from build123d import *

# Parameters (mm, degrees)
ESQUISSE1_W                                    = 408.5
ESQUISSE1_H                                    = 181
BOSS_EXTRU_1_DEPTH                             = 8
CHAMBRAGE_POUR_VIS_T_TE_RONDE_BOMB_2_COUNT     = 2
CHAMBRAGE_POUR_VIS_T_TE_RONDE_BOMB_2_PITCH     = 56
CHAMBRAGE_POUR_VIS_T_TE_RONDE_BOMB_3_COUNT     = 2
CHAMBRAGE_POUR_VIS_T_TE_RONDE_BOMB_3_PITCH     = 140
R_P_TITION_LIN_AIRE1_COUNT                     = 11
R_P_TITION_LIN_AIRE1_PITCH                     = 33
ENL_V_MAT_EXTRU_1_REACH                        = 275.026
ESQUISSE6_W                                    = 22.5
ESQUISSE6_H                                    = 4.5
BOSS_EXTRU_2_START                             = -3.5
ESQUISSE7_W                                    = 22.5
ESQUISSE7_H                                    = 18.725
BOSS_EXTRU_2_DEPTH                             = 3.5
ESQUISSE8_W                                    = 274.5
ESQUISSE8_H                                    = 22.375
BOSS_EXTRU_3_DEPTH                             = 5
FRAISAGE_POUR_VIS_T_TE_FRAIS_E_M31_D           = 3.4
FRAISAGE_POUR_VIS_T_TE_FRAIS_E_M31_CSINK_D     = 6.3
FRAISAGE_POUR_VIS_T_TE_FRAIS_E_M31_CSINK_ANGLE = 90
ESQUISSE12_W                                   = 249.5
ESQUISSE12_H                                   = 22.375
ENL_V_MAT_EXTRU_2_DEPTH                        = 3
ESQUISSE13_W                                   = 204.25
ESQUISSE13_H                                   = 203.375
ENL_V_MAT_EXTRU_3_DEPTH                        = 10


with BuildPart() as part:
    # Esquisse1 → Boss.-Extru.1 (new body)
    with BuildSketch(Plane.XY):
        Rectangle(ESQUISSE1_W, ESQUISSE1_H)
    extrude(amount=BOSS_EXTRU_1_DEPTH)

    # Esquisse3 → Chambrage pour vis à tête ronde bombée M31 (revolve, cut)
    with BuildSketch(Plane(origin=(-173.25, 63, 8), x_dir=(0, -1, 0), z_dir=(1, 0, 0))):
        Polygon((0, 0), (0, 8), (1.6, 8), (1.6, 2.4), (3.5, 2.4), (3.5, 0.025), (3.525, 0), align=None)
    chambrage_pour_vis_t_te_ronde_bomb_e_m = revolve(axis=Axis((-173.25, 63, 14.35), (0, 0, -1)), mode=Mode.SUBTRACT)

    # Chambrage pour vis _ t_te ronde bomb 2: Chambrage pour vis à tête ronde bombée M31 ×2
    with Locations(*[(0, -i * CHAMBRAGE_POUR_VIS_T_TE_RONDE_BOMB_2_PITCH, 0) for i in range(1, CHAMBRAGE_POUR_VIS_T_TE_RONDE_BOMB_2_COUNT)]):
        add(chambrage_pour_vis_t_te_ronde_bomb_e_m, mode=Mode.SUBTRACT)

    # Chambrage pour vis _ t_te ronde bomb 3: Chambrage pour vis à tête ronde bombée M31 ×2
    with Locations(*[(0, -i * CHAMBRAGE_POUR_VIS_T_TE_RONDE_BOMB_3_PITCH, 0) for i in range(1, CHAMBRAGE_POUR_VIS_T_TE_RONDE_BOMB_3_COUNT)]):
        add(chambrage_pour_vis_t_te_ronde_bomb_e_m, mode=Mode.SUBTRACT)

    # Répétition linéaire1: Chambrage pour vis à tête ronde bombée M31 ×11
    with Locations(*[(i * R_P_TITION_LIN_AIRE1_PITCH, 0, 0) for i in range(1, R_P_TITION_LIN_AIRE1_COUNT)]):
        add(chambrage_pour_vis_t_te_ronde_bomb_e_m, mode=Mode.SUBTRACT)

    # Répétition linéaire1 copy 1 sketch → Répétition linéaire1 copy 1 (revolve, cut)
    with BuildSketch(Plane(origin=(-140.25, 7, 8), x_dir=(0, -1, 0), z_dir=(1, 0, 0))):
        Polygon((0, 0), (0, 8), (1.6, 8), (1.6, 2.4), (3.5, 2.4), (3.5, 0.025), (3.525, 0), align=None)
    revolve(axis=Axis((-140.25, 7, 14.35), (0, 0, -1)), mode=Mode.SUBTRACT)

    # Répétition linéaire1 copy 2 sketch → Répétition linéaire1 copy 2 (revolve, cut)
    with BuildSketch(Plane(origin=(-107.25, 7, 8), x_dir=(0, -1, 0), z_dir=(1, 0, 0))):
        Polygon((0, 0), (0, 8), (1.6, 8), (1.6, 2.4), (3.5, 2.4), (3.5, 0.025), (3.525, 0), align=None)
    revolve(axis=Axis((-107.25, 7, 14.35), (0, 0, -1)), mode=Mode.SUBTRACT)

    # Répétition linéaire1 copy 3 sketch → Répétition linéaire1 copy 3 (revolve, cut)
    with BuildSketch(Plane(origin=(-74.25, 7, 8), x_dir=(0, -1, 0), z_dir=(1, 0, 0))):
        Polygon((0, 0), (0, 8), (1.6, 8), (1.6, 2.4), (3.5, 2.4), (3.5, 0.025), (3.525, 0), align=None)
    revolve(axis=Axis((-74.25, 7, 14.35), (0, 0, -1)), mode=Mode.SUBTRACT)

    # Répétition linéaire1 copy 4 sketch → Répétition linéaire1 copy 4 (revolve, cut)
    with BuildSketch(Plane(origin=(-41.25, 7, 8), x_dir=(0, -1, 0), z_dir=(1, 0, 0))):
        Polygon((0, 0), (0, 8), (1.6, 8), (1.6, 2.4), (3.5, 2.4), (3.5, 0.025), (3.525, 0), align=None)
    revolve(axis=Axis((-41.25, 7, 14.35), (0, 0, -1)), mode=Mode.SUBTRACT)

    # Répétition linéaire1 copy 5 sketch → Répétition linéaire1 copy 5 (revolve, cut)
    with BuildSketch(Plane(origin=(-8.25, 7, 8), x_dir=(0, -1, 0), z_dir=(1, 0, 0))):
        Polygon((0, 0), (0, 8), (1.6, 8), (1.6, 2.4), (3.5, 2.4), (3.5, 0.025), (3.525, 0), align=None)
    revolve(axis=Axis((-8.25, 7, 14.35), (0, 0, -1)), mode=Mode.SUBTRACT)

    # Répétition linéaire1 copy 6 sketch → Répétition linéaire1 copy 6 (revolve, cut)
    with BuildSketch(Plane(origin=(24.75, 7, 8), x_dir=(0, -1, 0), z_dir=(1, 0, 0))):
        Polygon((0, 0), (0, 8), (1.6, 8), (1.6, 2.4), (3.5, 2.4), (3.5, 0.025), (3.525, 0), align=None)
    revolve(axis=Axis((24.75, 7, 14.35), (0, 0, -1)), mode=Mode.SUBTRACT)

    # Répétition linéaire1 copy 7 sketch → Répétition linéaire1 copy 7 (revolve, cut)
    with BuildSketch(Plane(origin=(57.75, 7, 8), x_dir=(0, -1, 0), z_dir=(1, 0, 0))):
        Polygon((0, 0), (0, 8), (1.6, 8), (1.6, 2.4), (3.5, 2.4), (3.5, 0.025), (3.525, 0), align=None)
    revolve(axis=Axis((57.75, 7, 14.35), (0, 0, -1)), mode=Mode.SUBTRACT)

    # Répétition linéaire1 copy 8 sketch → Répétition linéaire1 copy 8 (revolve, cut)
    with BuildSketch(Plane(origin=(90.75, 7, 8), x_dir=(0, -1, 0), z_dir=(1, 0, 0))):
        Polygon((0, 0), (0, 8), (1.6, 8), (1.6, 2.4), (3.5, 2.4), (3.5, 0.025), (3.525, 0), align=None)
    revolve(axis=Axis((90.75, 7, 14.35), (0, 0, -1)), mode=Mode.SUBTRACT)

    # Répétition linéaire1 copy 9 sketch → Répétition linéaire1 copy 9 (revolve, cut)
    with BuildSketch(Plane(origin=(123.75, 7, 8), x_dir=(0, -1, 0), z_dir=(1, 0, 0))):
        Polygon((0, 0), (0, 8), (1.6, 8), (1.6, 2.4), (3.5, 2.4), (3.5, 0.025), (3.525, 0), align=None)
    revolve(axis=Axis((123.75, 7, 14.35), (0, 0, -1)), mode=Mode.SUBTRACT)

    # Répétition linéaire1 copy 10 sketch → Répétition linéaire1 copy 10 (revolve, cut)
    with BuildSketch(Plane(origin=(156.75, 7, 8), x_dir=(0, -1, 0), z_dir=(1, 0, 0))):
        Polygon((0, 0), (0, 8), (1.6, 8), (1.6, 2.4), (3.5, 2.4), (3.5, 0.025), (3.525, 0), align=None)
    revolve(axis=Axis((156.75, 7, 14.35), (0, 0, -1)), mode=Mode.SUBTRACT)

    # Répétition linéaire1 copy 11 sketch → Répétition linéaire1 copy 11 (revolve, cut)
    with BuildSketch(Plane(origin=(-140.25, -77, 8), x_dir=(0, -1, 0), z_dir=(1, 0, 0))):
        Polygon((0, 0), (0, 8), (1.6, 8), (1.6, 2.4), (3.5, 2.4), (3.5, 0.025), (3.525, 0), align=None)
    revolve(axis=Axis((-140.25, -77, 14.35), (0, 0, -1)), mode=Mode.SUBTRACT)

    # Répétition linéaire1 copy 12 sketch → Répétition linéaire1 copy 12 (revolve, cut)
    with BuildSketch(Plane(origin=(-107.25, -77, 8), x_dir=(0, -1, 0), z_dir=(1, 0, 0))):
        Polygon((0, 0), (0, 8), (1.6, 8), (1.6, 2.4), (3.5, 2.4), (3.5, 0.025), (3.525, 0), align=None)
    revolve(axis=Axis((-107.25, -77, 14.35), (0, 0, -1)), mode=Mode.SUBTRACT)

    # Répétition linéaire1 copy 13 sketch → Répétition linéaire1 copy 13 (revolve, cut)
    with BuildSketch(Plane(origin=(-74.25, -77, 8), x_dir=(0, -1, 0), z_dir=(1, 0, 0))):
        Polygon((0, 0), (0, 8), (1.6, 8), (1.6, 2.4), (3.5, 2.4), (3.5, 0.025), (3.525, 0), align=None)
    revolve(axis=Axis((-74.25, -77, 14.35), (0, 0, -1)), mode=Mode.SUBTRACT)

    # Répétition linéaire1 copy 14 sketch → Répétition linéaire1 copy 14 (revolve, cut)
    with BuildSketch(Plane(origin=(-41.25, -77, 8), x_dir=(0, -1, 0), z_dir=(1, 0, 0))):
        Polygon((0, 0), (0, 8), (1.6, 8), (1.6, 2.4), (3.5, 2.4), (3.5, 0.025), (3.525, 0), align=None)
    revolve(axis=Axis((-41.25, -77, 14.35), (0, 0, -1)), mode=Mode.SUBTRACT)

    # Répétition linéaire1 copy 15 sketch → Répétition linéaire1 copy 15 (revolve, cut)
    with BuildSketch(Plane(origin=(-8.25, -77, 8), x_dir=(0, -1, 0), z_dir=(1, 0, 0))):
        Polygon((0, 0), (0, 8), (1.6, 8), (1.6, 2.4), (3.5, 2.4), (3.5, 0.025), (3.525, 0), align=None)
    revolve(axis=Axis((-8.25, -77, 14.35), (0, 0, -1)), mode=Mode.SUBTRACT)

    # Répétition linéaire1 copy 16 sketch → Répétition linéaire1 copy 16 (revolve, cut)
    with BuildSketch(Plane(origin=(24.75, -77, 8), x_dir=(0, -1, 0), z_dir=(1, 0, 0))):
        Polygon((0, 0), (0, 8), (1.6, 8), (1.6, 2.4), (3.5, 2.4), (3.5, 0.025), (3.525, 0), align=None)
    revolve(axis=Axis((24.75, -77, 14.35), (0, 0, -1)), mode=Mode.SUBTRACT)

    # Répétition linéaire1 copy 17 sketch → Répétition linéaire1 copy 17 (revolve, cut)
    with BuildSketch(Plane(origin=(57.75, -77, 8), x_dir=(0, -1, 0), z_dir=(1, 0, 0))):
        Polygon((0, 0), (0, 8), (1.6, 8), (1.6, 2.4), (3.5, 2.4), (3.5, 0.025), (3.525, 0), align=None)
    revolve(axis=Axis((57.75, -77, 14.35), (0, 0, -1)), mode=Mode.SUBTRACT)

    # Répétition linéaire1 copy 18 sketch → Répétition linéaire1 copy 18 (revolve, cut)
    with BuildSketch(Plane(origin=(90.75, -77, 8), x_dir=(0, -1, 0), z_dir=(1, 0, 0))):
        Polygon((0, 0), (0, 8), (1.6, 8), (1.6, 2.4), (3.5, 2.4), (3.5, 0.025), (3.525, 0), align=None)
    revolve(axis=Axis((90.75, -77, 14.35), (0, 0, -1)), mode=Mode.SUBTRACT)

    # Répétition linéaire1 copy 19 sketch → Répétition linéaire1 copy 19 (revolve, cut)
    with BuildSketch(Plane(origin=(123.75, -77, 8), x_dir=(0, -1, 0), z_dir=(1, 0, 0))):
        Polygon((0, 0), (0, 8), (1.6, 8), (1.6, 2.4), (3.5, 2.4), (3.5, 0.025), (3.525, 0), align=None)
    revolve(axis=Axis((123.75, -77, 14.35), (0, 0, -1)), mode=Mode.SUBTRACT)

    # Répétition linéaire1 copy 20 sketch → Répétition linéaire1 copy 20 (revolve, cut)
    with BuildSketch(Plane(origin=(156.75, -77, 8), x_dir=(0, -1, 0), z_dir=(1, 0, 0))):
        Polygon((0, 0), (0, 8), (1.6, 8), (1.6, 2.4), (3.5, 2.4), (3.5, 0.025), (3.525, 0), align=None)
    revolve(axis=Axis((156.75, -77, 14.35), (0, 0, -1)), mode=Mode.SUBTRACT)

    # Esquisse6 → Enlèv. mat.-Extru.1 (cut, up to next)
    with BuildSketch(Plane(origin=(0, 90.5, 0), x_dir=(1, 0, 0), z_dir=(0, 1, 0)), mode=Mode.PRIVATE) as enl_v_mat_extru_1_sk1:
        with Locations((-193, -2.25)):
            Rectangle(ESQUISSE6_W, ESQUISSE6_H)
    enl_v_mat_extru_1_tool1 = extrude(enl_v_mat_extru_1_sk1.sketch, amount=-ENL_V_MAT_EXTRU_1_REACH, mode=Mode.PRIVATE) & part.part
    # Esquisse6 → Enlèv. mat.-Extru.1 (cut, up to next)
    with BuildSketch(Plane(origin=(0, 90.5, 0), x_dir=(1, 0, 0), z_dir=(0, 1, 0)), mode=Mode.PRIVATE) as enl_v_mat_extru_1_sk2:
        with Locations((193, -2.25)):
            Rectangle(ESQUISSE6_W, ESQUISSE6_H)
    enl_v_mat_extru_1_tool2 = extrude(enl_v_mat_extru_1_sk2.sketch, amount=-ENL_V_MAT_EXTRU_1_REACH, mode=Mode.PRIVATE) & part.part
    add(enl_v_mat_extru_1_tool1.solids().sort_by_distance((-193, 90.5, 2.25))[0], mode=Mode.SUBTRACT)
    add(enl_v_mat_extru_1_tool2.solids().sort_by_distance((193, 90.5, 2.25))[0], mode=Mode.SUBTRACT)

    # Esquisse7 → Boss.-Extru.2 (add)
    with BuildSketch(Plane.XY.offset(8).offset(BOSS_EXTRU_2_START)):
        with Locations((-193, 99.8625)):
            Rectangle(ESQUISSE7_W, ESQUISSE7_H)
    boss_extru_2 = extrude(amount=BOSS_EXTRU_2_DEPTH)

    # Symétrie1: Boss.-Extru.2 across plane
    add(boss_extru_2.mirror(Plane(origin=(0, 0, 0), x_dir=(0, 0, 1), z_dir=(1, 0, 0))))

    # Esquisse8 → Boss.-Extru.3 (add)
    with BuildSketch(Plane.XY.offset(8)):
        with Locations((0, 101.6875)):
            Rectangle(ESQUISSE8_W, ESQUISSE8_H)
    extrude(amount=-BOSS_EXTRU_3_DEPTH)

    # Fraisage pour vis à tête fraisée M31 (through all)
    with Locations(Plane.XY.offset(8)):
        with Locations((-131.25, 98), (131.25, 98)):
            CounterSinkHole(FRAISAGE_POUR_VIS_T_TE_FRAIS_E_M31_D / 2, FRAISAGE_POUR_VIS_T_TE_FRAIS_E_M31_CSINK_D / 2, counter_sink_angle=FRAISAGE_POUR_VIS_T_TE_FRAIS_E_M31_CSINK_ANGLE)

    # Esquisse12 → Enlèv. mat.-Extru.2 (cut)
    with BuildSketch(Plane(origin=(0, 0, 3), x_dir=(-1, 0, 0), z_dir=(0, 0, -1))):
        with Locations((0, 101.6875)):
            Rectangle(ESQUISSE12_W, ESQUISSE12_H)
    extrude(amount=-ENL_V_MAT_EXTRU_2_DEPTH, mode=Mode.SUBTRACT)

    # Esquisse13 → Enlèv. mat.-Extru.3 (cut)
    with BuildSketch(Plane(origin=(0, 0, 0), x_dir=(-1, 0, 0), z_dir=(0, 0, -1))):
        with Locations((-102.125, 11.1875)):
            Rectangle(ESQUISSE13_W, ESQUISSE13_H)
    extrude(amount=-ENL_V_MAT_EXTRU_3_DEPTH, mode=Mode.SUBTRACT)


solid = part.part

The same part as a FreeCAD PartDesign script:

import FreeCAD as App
import Part
import Sketcher
Q = App.Units.Quantity


def add_polygon(sketch, points):
    """Adds a closed chain of lines whose ends are joined by coincident constraints."""
    first, n = sketch.GeometryCount, len(points)
    for a, b in zip(points, points[1:] + points[:1]):
        sketch.addGeometry(Part.LineSegment(App.Vector(*a, 0), App.Vector(*b, 0)), False)
    for i in range(n):
        sketch.addConstraint(Sketcher.Constraint("Coincident", first + i, 2, first + (i + 1) % n, 1))

doc = App.newDocument("Part")
body = doc.addObject("PartDesign::Body", "Body")

# Sketch on XY plane
sketch1 = body.newObject("Sketcher::SketchObject", "Sketch")
sketch1.AttachmentSupport = (doc.getObject("XY_Plane"), [""])
sketch1.MapMode = "FlatFace"
add_polygon(sketch1, [(-204.25, 90.5), (-204.25, -90.5), (204.25, -90.5), (204.25, 90.5)])  # lines 0-3
sketch1.addConstraint([
    Sketcher.Constraint("Vertical", 0),
    Sketcher.Constraint("Horizontal", 1),
    Sketcher.Constraint("Vertical", 2),
    Sketcher.Constraint("Horizontal", 3),
    Sketcher.Constraint("Symmetric", 0, 2, 2, 2, -1, 1),
    Sketcher.Constraint("DistanceY", 0, 2, 0, 1, Q("181 mm")),
    Sketcher.Constraint("DistanceX", 1, 1, 1, 2, Q("408.5 mm")),
])
pad1 = body.newObject("PartDesign::Pad", "Pad")
pad1.Profile = sketch1
pad1.Length = 8

# Sketch on YZ plane
sketch2 = body.newObject("Sketcher::SketchObject", "Sketch001")
sketch2.AttachmentSupport = (doc.getObject("YZ_Plane"), [""])
sketch2.MapMode = "FlatFace"
sketch2.AttachmentOffset = App.Placement(App.Vector(0, 0, -173.25), App.Rotation())
add_polygon(sketch2, [(63, 0), (63, 8), (59.475, 8), (59.5, 7.975), (59.5, 5.6), (61.4, 5.6), (61.4, 0)])  # lines 0-6
sketch2.addGeometry(Part.LineSegment(App.Vector(63, 8, 0), App.Vector(63, 0, 0)), True)  # axis
sketch2.addConstraint([
    Sketcher.Constraint("Vertical", 0),
    Sketcher.Constraint("Horizontal", 1),
    Sketcher.Constraint("Vertical", 3),
    Sketcher.Constraint("Horizontal", 4),
    Sketcher.Constraint("Vertical", 5),
    Sketcher.Constraint("Horizontal", 6),
    Sketcher.Constraint("Vertical", 7),
    Sketcher.Constraint("Coincident", 7, 1, 0, 2),
    Sketcher.Constraint("PointOnObject", 5, 2, -1),
    Sketcher.Constraint("PointOnObject", 7, 2, -1),
    Sketcher.Constraint("DistanceY", 0, 1, 0, 2, Q("8 mm")),
    Sketcher.Constraint("Angle", 2, Q("-45 deg")),
    Sketcher.Constraint("DistanceX", 4, 1, 4, 2, Q("1.9 mm")),
    Sketcher.Constraint("DistanceX", 6, 1, 6, 2, Q("1.6 mm")),
    Sketcher.Constraint("DistanceY", 5, 2, 5, 1, Q("5.6 mm")),
    Sketcher.Constraint("DistanceX", -1, 1, 0, 2, Q("63 mm")),
    Sketcher.Constraint("DistanceX", 1, 2, 1, 1, Q("3.525 mm")),
])
groove = body.newObject("PartDesign::Groove", "Groove")
groove.Profile = sketch2
groove.ReferenceAxis = (sketch2, ["Axis0"])
groove.Angle = 360
doc.recompute()

linearpattern = body.newObject("PartDesign::LinearPattern", "LinearPattern")
linearpattern.Originals = [groove]
linearpattern.Direction = (doc.getObject("Y_Axis"), [""])
linearpattern.Mode = "offset"
linearpattern.Offset = 56
linearpattern.Occurrences = 2
linearpattern.Reversed = True
body.Tip = linearpattern
doc.recompute()

linearpattern2 = body.newObject("PartDesign::LinearPattern", "LinearPattern001")
linearpattern2.Originals = [groove]
linearpattern2.Direction = (doc.getObject("Y_Axis"), [""])
linearpattern2.Mode = "offset"
linearpattern2.Offset = 140
linearpattern2.Occurrences = 2
linearpattern2.Reversed = True
body.Tip = linearpattern2
doc.recompute()

linearpattern3 = body.newObject("PartDesign::LinearPattern", "LinearPattern002")
linearpattern3.Originals = [groove]
linearpattern3.Direction = (doc.getObject("X_Axis"), [""])
linearpattern3.Mode = "offset"
linearpattern3.Offset = 33
linearpattern3.Occurrences = 11
body.Tip = linearpattern3

# Sketch on YZ plane
sketch3 = body.newObject("Sketcher::SketchObject", "Sketch002")
sketch3.AttachmentSupport = (doc.getObject("YZ_Plane"), [""])
sketch3.MapMode = "FlatFace"
sketch3.AttachmentOffset = App.Placement(App.Vector(0, 0, -140.25), App.Rotation())
add_polygon(sketch3, [(7, 0), (7, 8), (3.475, 8), (3.5, 7.975), (3.5, 5.6), (5.4, 5.6), (5.4, 0)])  # lines 0-6
sketch3.addGeometry(Part.LineSegment(App.Vector(7, 8, 0), App.Vector(7, 0, 0)), True)  # axis
sketch3.addConstraint([
    Sketcher.Constraint("Vertical", 0),
    Sketcher.Constraint("Horizontal", 1),
    Sketcher.Constraint("Vertical", 3),
    Sketcher.Constraint("Horizontal", 4),
    Sketcher.Constraint("Vertical", 5),
    Sketcher.Constraint("Horizontal", 6),
    Sketcher.Constraint("Vertical", 7),
    Sketcher.Constraint("Coincident", 7, 1, 0, 2),
    Sketcher.Constraint("PointOnObject", 5, 2, -1),
    Sketcher.Constraint("PointOnObject", 7, 2, -1),
    Sketcher.Constraint("DistanceY", 0, 1, 0, 2, Q("8 mm")),
    Sketcher.Constraint("Angle", 2, Q("-45 deg")),
    Sketcher.Constraint("DistanceX", 4, 1, 4, 2, Q("1.9 mm")),
    Sketcher.Constraint("DistanceX", 6, 1, 6, 2, Q("1.6 mm")),
    Sketcher.Constraint("DistanceY", 5, 2, 5, 1, Q("5.6 mm")),
    Sketcher.Constraint("DistanceX", -1, 1, 0, 2, Q("7 mm")),
    Sketcher.Constraint("DistanceX", 1, 2, 1, 1, Q("3.525 mm")),
])
groove2 = body.newObject("PartDesign::Groove", "Groove001")
groove2.Profile = sketch3
groove2.ReferenceAxis = (sketch3, ["Axis0"])
groove2.Angle = 360

# Sketch on YZ plane
sketch4 = body.newObject("Sketcher::SketchObject", "Sketch003")
sketch4.AttachmentSupport = (doc.getObject("YZ_Plane"), [""])
sketch4.MapMode = "FlatFace"
sketch4.AttachmentOffset = App.Placement(App.Vector(0, 0, -107.25), App.Rotation())
add_polygon(sketch4, [(7, 0), (7, 8), (3.475, 8), (3.5, 7.975), (3.5, 5.6), (5.4, 5.6), (5.4, 0)])  # lines 0-6
sketch4.addGeometry(Part.LineSegment(App.Vector(7, 8, 0), App.Vector(7, 0, 0)), True)  # axis
sketch4.addConstraint([
    Sketcher.Constraint("Vertical", 0),
    Sketcher.Constraint("Horizontal", 1),
    Sketcher.Constraint("Vertical", 3),
    Sketcher.Constraint("Horizontal", 4),
    Sketcher.Constraint("Vertical", 5),
    Sketcher.Constraint("Horizontal", 6),
    Sketcher.Constraint("Vertical", 7),
    Sketcher.Constraint("Coincident", 7, 1, 0, 2),
    Sketcher.Constraint("PointOnObject", 5, 2, -1),
    Sketcher.Constraint("PointOnObject", 7, 2, -1),
    Sketcher.Constraint("DistanceY", 0, 1, 0, 2, Q("8 mm")),
    Sketcher.Constraint("Angle", 2, Q("-45 deg")),
    Sketcher.Constraint("DistanceX", 4, 1, 4, 2, Q("1.9 mm")),
    Sketcher.Constraint("DistanceX", 6, 1, 6, 2, Q("1.6 mm")),
    Sketcher.Constraint("DistanceY", 5, 2, 5, 1, Q("5.6 mm")),
    Sketcher.Constraint("DistanceX", -1, 1, 0, 2, Q("7 mm")),
    Sketcher.Constraint("DistanceX", 1, 2, 1, 1, Q("3.525 mm")),
])
groove3 = body.newObject("PartDesign::Groove", "Groove002")
groove3.Profile = sketch4
groove3.ReferenceAxis = (sketch4, ["Axis0"])
groove3.Angle = 360

# Sketch on YZ plane
sketch5 = body.newObject("Sketcher::SketchObject", "Sketch004")
sketch5.AttachmentSupport = (doc.getObject("YZ_Plane"), [""])
sketch5.MapMode = "FlatFace"
sketch5.AttachmentOffset = App.Placement(App.Vector(0, 0, -74.25), App.Rotation())
add_polygon(sketch5, [(7, 0), (7, 8), (3.475, 8), (3.5, 7.975), (3.5, 5.6), (5.4, 5.6), (5.4, 0)])  # lines 0-6
sketch5.addGeometry(Part.LineSegment(App.Vector(7, 8, 0), App.Vector(7, 0, 0)), True)  # axis
sketch5.addConstraint([
    Sketcher.Constraint("Vertical", 0),
    Sketcher.Constraint("Horizontal", 1),
    Sketcher.Constraint("Vertical", 3),
    Sketcher.Constraint("Horizontal", 4),
    Sketcher.Constraint("Vertical", 5),
    Sketcher.Constraint("Horizontal", 6),
    Sketcher.Constraint("Vertical", 7),
    Sketcher.Constraint("Coincident", 7, 1, 0, 2),
    Sketcher.Constraint("PointOnObject", 5, 2, -1),
    Sketcher.Constraint("PointOnObject", 7, 2, -1),
    Sketcher.Constraint("DistanceY", 0, 1, 0, 2, Q("8 mm")),
    Sketcher.Constraint("Angle", 2, Q("-45 deg")),
    Sketcher.Constraint("DistanceX", 4, 1, 4, 2, Q("1.9 mm")),
    Sketcher.Constraint("DistanceX", 6, 1, 6, 2, Q("1.6 mm")),
    Sketcher.Constraint("DistanceY", 5, 2, 5, 1, Q("5.6 mm")),
    Sketcher.Constraint("DistanceX", -1, 1, 0, 2, Q("7 mm")),
    Sketcher.Constraint("DistanceX", 1, 2, 1, 1, Q("3.525 mm")),
])
groove4 = body.newObject("PartDesign::Groove", "Groove003")
groove4.Profile = sketch5
groove4.ReferenceAxis = (sketch5, ["Axis0"])
groove4.Angle = 360

# Sketch on YZ plane
sketch6 = body.newObject("Sketcher::SketchObject", "Sketch005")
sketch6.AttachmentSupport = (doc.getObject("YZ_Plane"), [""])
sketch6.MapMode = "FlatFace"
sketch6.AttachmentOffset = App.Placement(App.Vector(0, 0, -41.25), App.Rotation())
add_polygon(sketch6, [(7, 0), (7, 8), (3.475, 8), (3.5, 7.975), (3.5, 5.6), (5.4, 5.6), (5.4, 0)])  # lines 0-6
sketch6.addGeometry(Part.LineSegment(App.Vector(7, 8, 0), App.Vector(7, 0, 0)), True)  # axis
sketch6.addConstraint([
    Sketcher.Constraint("Vertical", 0),
    Sketcher.Constraint("Horizontal", 1),
    Sketcher.Constraint("Vertical", 3),
    Sketcher.Constraint("Horizontal", 4),
    Sketcher.Constraint("Vertical", 5),
    Sketcher.Constraint("Horizontal", 6),
    Sketcher.Constraint("Vertical", 7),
    Sketcher.Constraint("Coincident", 7, 1, 0, 2),
    Sketcher.Constraint("PointOnObject", 5, 2, -1),
    Sketcher.Constraint("PointOnObject", 7, 2, -1),
    Sketcher.Constraint("DistanceY", 0, 1, 0, 2, Q("8 mm")),
    Sketcher.Constraint("Angle", 2, Q("-45 deg")),
    Sketcher.Constraint("DistanceX", 4, 1, 4, 2, Q("1.9 mm")),
    Sketcher.Constraint("DistanceX", 6, 1, 6, 2, Q("1.6 mm")),
    Sketcher.Constraint("DistanceY", 5, 2, 5, 1, Q("5.6 mm")),
    Sketcher.Constraint("DistanceX", -1, 1, 0, 2, Q("7 mm")),
    Sketcher.Constraint("DistanceX", 1, 2, 1, 1, Q("3.525 mm")),
])
groove5 = body.newObject("PartDesign::Groove", "Groove004")
groove5.Profile = sketch6
groove5.ReferenceAxis = (sketch6, ["Axis0"])
groove5.Angle = 360

# Sketch on YZ plane
sketch7 = body.newObject("Sketcher::SketchObject", "Sketch006")
sketch7.AttachmentSupport = (doc.getObject("YZ_Plane"), [""])
sketch7.MapMode = "FlatFace"
sketch7.AttachmentOffset = App.Placement(App.Vector(0, 0, -8.25), App.Rotation())
add_polygon(sketch7, [(7, 0), (7, 8), (3.475, 8), (3.5, 7.975), (3.5, 5.6), (5.4, 5.6), (5.4, 0)])  # lines 0-6
sketch7.addGeometry(Part.LineSegment(App.Vector(7, 8, 0), App.Vector(7, 0, 0)), True)  # axis
sketch7.addConstraint([
    Sketcher.Constraint("Vertical", 0),
    Sketcher.Constraint("Horizontal", 1),
    Sketcher.Constraint("Vertical", 3),
    Sketcher.Constraint("Horizontal", 4),
    Sketcher.Constraint("Vertical", 5),
    Sketcher.Constraint("Horizontal", 6),
    Sketcher.Constraint("Vertical", 7),
    Sketcher.Constraint("Coincident", 7, 1, 0, 2),
    Sketcher.Constraint("PointOnObject", 5, 2, -1),
    Sketcher.Constraint("PointOnObject", 7, 2, -1),
    Sketcher.Constraint("DistanceY", 0, 1, 0, 2, Q("8 mm")),
    Sketcher.Constraint("Angle", 2, Q("-45 deg")),
    Sketcher.Constraint("DistanceX", 4, 1, 4, 2, Q("1.9 mm")),
    Sketcher.Constraint("DistanceX", 6, 1, 6, 2, Q("1.6 mm")),
    Sketcher.Constraint("DistanceY", 5, 2, 5, 1, Q("5.6 mm")),
    Sketcher.Constraint("DistanceX", -1, 1, 0, 2, Q("7 mm")),
    Sketcher.Constraint("DistanceX", 1, 2, 1, 1, Q("3.525 mm")),
])
groove6 = body.newObject("PartDesign::Groove", "Groove005")
groove6.Profile = sketch7
groove6.ReferenceAxis = (sketch7, ["Axis0"])
groove6.Angle = 360

# Sketch on YZ plane
sketch8 = body.newObject("Sketcher::SketchObject", "Sketch007")
sketch8.AttachmentSupport = (doc.getObject("YZ_Plane"), [""])
sketch8.MapMode = "FlatFace"
sketch8.AttachmentOffset = App.Placement(App.Vector(0, 0, 24.75), App.Rotation())
add_polygon(sketch8, [(7, 0), (7, 8), (3.475, 8), (3.5, 7.975), (3.5, 5.6), (5.4, 5.6), (5.4, 0)])  # lines 0-6
sketch8.addGeometry(Part.LineSegment(App.Vector(7, 8, 0), App.Vector(7, 0, 0)), True)  # axis
sketch8.addConstraint([
    Sketcher.Constraint("Vertical", 0),
    Sketcher.Constraint("Horizontal", 1),
    Sketcher.Constraint("Vertical", 3),
    Sketcher.Constraint("Horizontal", 4),
    Sketcher.Constraint("Vertical", 5),
    Sketcher.Constraint("Horizontal", 6),
    Sketcher.Constraint("Vertical", 7),
    Sketcher.Constraint("Coincident", 7, 1, 0, 2),
    Sketcher.Constraint("PointOnObject", 5, 2, -1),
    Sketcher.Constraint("PointOnObject", 7, 2, -1),
    Sketcher.Constraint("DistanceY", 0, 1, 0, 2, Q("8 mm")),
    Sketcher.Constraint("Angle", 2, Q("-45 deg")),
    Sketcher.Constraint("DistanceX", 4, 1, 4, 2, Q("1.9 mm")),
    Sketcher.Constraint("DistanceX", 6, 1, 6, 2, Q("1.6 mm")),
    Sketcher.Constraint("DistanceY", 5, 2, 5, 1, Q("5.6 mm")),
    Sketcher.Constraint("DistanceX", -1, 1, 0, 2, Q("7 mm")),
    Sketcher.Constraint("DistanceX", 1, 2, 1, 1, Q("3.525 mm")),
])
groove7 = body.newObject("PartDesign::Groove", "Groove006")
groove7.Profile = sketch8
groove7.ReferenceAxis = (sketch8, ["Axis0"])
groove7.Angle = 360

# Sketch on YZ plane
sketch9 = body.newObject("Sketcher::SketchObject", "Sketch008")
sketch9.AttachmentSupport = (doc.getObject("YZ_Plane"), [""])
sketch9.MapMode = "FlatFace"
sketch9.AttachmentOffset = App.Placement(App.Vector(0, 0, 57.75), App.Rotation())
add_polygon(sketch9, [(7, 0), (7, 8), (3.475, 8), (3.5, 7.975), (3.5, 5.6), (5.4, 5.6), (5.4, 0)])  # lines 0-6
sketch9.addGeometry(Part.LineSegment(App.Vector(7, 8, 0), App.Vector(7, 0, 0)), True)  # axis
sketch9.addConstraint([
    Sketcher.Constraint("Vertical", 0),
    Sketcher.Constraint("Horizontal", 1),
    Sketcher.Constraint("Vertical", 3),
    Sketcher.Constraint("Horizontal", 4),
    Sketcher.Constraint("Vertical", 5),
    Sketcher.Constraint("Horizontal", 6),
    Sketcher.Constraint("Vertical", 7),
    Sketcher.Constraint("Coincident", 7, 1, 0, 2),
    Sketcher.Constraint("PointOnObject", 5, 2, -1),
    Sketcher.Constraint("PointOnObject", 7, 2, -1),
    Sketcher.Constraint("DistanceY", 0, 1, 0, 2, Q("8 mm")),
    Sketcher.Constraint("Angle", 2, Q("-45 deg")),
    Sketcher.Constraint("DistanceX", 4, 1, 4, 2, Q("1.9 mm")),
    Sketcher.Constraint("DistanceX", 6, 1, 6, 2, Q("1.6 mm")),
    Sketcher.Constraint("DistanceY", 5, 2, 5, 1, Q("5.6 mm")),
    Sketcher.Constraint("DistanceX", -1, 1, 0, 2, Q("7 mm")),
    Sketcher.Constraint("DistanceX", 1, 2, 1, 1, Q("3.525 mm")),
])
groove8 = body.newObject("PartDesign::Groove", "Groove007")
groove8.Profile = sketch9
groove8.ReferenceAxis = (sketch9, ["Axis0"])
groove8.Angle = 360

# Sketch on YZ plane
sketch10 = body.newObject("Sketcher::SketchObject", "Sketch009")
sketch10.AttachmentSupport = (doc.getObject("YZ_Plane"), [""])
sketch10.MapMode = "FlatFace"
sketch10.AttachmentOffset = App.Placement(App.Vector(0, 0, 90.75), App.Rotation())
add_polygon(sketch10, [(7, 0), (7, 8), (3.475, 8), (3.5, 7.975), (3.5, 5.6), (5.4, 5.6), (5.4, 0)])  # lines 0-6
sketch10.addGeometry(Part.LineSegment(App.Vector(7, 8, 0), App.Vector(7, 0, 0)), True)  # axis
sketch10.addConstraint([
    Sketcher.Constraint("Vertical", 0),
    Sketcher.Constraint("Horizontal", 1),
    Sketcher.Constraint("Vertical", 3),
    Sketcher.Constraint("Horizontal", 4),
    Sketcher.Constraint("Vertical", 5),
    Sketcher.Constraint("Horizontal", 6),
    Sketcher.Constraint("Vertical", 7),
    Sketcher.Constraint("Coincident", 7, 1, 0, 2),
    Sketcher.Constraint("PointOnObject", 5, 2, -1),
    Sketcher.Constraint("PointOnObject", 7, 2, -1),
    Sketcher.Constraint("DistanceY", 0, 1, 0, 2, Q("8 mm")),
    Sketcher.Constraint("Angle", 2, Q("-45 deg")),
    Sketcher.Constraint("DistanceX", 4, 1, 4, 2, Q("1.9 mm")),
    Sketcher.Constraint("DistanceX", 6, 1, 6, 2, Q("1.6 mm")),
    Sketcher.Constraint("DistanceY", 5, 2, 5, 1, Q("5.6 mm")),
    Sketcher.Constraint("DistanceX", -1, 1, 0, 2, Q("7 mm")),
    Sketcher.Constraint("DistanceX", 1, 2, 1, 1, Q("3.525 mm")),
])
groove9 = body.newObject("PartDesign::Groove", "Groove008")
groove9.Profile = sketch10
groove9.ReferenceAxis = (sketch10, ["Axis0"])
groove9.Angle = 360

# Sketch on YZ plane
sketch11 = body.newObject("Sketcher::SketchObject", "Sketch010")
sketch11.AttachmentSupport = (doc.getObject("YZ_Plane"), [""])
sketch11.MapMode = "FlatFace"
sketch11.AttachmentOffset = App.Placement(App.Vector(0, 0, 123.75), App.Rotation())
add_polygon(sketch11, [(7, 0), (7, 8), (3.475, 8), (3.5, 7.975), (3.5, 5.6), (5.4, 5.6), (5.4, 0)])  # lines 0-6
sketch11.addGeometry(Part.LineSegment(App.Vector(7, 8, 0), App.Vector(7, 0, 0)), True)  # axis
sketch11.addConstraint([
    Sketcher.Constraint("Vertical", 0),
    Sketcher.Constraint("Horizontal", 1),
    Sketcher.Constraint("Vertical", 3),
    Sketcher.Constraint("Horizontal", 4),
    Sketcher.Constraint("Vertical", 5),
    Sketcher.Constraint("Horizontal", 6),
    Sketcher.Constraint("Vertical", 7),
    Sketcher.Constraint("Coincident", 7, 1, 0, 2),
    Sketcher.Constraint("PointOnObject", 5, 2, -1),
    Sketcher.Constraint("PointOnObject", 7, 2, -1),
    Sketcher.Constraint("DistanceY", 0, 1, 0, 2, Q("8 mm")),
    Sketcher.Constraint("Angle", 2, Q("-45 deg")),
    Sketcher.Constraint("DistanceX", 4, 1, 4, 2, Q("1.9 mm")),
    Sketcher.Constraint("DistanceX", 6, 1, 6, 2, Q("1.6 mm")),
    Sketcher.Constraint("DistanceY", 5, 2, 5, 1, Q("5.6 mm")),
    Sketcher.Constraint("DistanceX", -1, 1, 0, 2, Q("7 mm")),
    Sketcher.Constraint("DistanceX", 1, 2, 1, 1, Q("3.525 mm")),
])
groove10 = body.newObject("PartDesign::Groove", "Groove009")
groove10.Profile = sketch11
groove10.ReferenceAxis = (sketch11, ["Axis0"])
groove10.Angle = 360

# Sketch on YZ plane
sketch12 = body.newObject("Sketcher::SketchObject", "Sketch011")
sketch12.AttachmentSupport = (doc.getObject("YZ_Plane"), [""])
sketch12.MapMode = "FlatFace"
sketch12.AttachmentOffset = App.Placement(App.Vector(0, 0, 156.75), App.Rotation())
add_polygon(sketch12, [(7, 0), (7, 8), (3.475, 8), (3.5, 7.975), (3.5, 5.6), (5.4, 5.6), (5.4, 0)])  # lines 0-6
sketch12.addGeometry(Part.LineSegment(App.Vector(7, 8, 0), App.Vector(7, 0, 0)), True)  # axis
sketch12.addConstraint([
    Sketcher.Constraint("Vertical", 0),
    Sketcher.Constraint("Horizontal", 1),
    Sketcher.Constraint("Vertical", 3),
    Sketcher.Constraint("Horizontal", 4),
    Sketcher.Constraint("Vertical", 5),
    Sketcher.Constraint("Horizontal", 6),
    Sketcher.Constraint("Vertical", 7),
    Sketcher.Constraint("Coincident", 7, 1, 0, 2),
    Sketcher.Constraint("PointOnObject", 5, 2, -1),
    Sketcher.Constraint("PointOnObject", 7, 2, -1),
    Sketcher.Constraint("DistanceY", 0, 1, 0, 2, Q("8 mm")),
    Sketcher.Constraint("Angle", 2, Q("-45 deg")),
    Sketcher.Constraint("DistanceX", 4, 1, 4, 2, Q("1.9 mm")),
    Sketcher.Constraint("DistanceX", 6, 1, 6, 2, Q("1.6 mm")),
    Sketcher.Constraint("DistanceY", 5, 2, 5, 1, Q("5.6 mm")),
    Sketcher.Constraint("DistanceX", -1, 1, 0, 2, Q("7 mm")),
    Sketcher.Constraint("DistanceX", 1, 2, 1, 1, Q("3.525 mm")),
])
groove11 = body.newObject("PartDesign::Groove", "Groove010")
groove11.Profile = sketch12
groove11.ReferenceAxis = (sketch12, ["Axis0"])
groove11.Angle = 360

# Sketch on YZ plane
sketch13 = body.newObject("Sketcher::SketchObject", "Sketch012")
sketch13.AttachmentSupport = (doc.getObject("YZ_Plane"), [""])
sketch13.MapMode = "FlatFace"
sketch13.AttachmentOffset = App.Placement(App.Vector(0, 0, -140.25), App.Rotation())
add_polygon(sketch13, [(-77, 0), (-77, 8), (-80.525, 8), (-80.5, 7.975), (-80.5, 5.6), (-78.6, 5.6), (-78.6, 0)])  # lines 0-6
sketch13.addGeometry(Part.LineSegment(App.Vector(-77, 8, 0), App.Vector(-77, 0, 0)), True)  # axis
sketch13.addConstraint([
    Sketcher.Constraint("Vertical", 0),
    Sketcher.Constraint("Horizontal", 1),
    Sketcher.Constraint("Vertical", 3),
    Sketcher.Constraint("Horizontal", 4),
    Sketcher.Constraint("Vertical", 5),
    Sketcher.Constraint("Horizontal", 6),
    Sketcher.Constraint("Vertical", 7),
    Sketcher.Constraint("Coincident", 7, 1, 0, 2),
    Sketcher.Constraint("PointOnObject", 5, 2, -1),
    Sketcher.Constraint("PointOnObject", 7, 2, -1),
    Sketcher.Constraint("DistanceY", 0, 1, 0, 2, Q("8 mm")),
    Sketcher.Constraint("Angle", 2, Q("-45 deg")),
    Sketcher.Constraint("DistanceX", 4, 1, 4, 2, Q("1.9 mm")),
    Sketcher.Constraint("DistanceX", 6, 1, 6, 2, Q("1.6 mm")),
    Sketcher.Constraint("DistanceY", 5, 2, 5, 1, Q("5.6 mm")),
    Sketcher.Constraint("DistanceX", 0, 2, -1, 1, Q("77 mm")),
    Sketcher.Constraint("DistanceX", 1, 2, 1, 1, Q("3.525 mm")),
])
groove12 = body.newObject("PartDesign::Groove", "Groove011")
groove12.Profile = sketch13
groove12.ReferenceAxis = (sketch13, ["Axis0"])
groove12.Angle = 360

# Sketch on YZ plane
sketch14 = body.newObject("Sketcher::SketchObject", "Sketch013")
sketch14.AttachmentSupport = (doc.getObject("YZ_Plane"), [""])
sketch14.MapMode = "FlatFace"
sketch14.AttachmentOffset = App.Placement(App.Vector(0, 0, -107.25), App.Rotation())
add_polygon(sketch14, [(-77, 0), (-77, 8), (-80.525, 8), (-80.5, 7.975), (-80.5, 5.6), (-78.6, 5.6), (-78.6, 0)])  # lines 0-6
sketch14.addGeometry(Part.LineSegment(App.Vector(-77, 8, 0), App.Vector(-77, 0, 0)), True)  # axis
sketch14.addConstraint([
    Sketcher.Constraint("Vertical", 0),
    Sketcher.Constraint("Horizontal", 1),
    Sketcher.Constraint("Vertical", 3),
    Sketcher.Constraint("Horizontal", 4),
    Sketcher.Constraint("Vertical", 5),
    Sketcher.Constraint("Horizontal", 6),
    Sketcher.Constraint("Vertical", 7),
    Sketcher.Constraint("Coincident", 7, 1, 0, 2),
    Sketcher.Constraint("PointOnObject", 5, 2, -1),
    Sketcher.Constraint("PointOnObject", 7, 2, -1),
    Sketcher.Constraint("DistanceY", 0, 1, 0, 2, Q("8 mm")),
    Sketcher.Constraint("Angle", 2, Q("-45 deg")),
    Sketcher.Constraint("DistanceX", 4, 1, 4, 2, Q("1.9 mm")),
    Sketcher.Constraint("DistanceX", 6, 1, 6, 2, Q("1.6 mm")),
    Sketcher.Constraint("DistanceY", 5, 2, 5, 1, Q("5.6 mm")),
    Sketcher.Constraint("DistanceX", 0, 2, -1, 1, Q("77 mm")),
    Sketcher.Constraint("DistanceX", 1, 2, 1, 1, Q("3.525 mm")),
])
groove13 = body.newObject("PartDesign::Groove", "Groove012")
groove13.Profile = sketch14
groove13.ReferenceAxis = (sketch14, ["Axis0"])
groove13.Angle = 360

# Sketch on YZ plane
sketch15 = body.newObject("Sketcher::SketchObject", "Sketch014")
sketch15.AttachmentSupport = (doc.getObject("YZ_Plane"), [""])
sketch15.MapMode = "FlatFace"
sketch15.AttachmentOffset = App.Placement(App.Vector(0, 0, -74.25), App.Rotation())
add_polygon(sketch15, [(-77, 0), (-77, 8), (-80.525, 8), (-80.5, 7.975), (-80.5, 5.6), (-78.6, 5.6), (-78.6, 0)])  # lines 0-6
sketch15.addGeometry(Part.LineSegment(App.Vector(-77, 8, 0), App.Vector(-77, 0, 0)), True)  # axis
sketch15.addConstraint([
    Sketcher.Constraint("Vertical", 0),
    Sketcher.Constraint("Horizontal", 1),
    Sketcher.Constraint("Vertical", 3),
    Sketcher.Constraint("Horizontal", 4),
    Sketcher.Constraint("Vertical", 5),
    Sketcher.Constraint("Horizontal", 6),
    Sketcher.Constraint("Vertical", 7),
    Sketcher.Constraint("Coincident", 7, 1, 0, 2),
    Sketcher.Constraint("PointOnObject", 5, 2, -1),
    Sketcher.Constraint("PointOnObject", 7, 2, -1),
    Sketcher.Constraint("DistanceY", 0, 1, 0, 2, Q("8 mm")),
    Sketcher.Constraint("Angle", 2, Q("-45 deg")),
    Sketcher.Constraint("DistanceX", 4, 1, 4, 2, Q("1.9 mm")),
    Sketcher.Constraint("DistanceX", 6, 1, 6, 2, Q("1.6 mm")),
    Sketcher.Constraint("DistanceY", 5, 2, 5, 1, Q("5.6 mm")),
    Sketcher.Constraint("DistanceX", 0, 2, -1, 1, Q("77 mm")),
    Sketcher.Constraint("DistanceX", 1, 2, 1, 1, Q("3.525 mm")),
])
groove14 = body.newObject("PartDesign::Groove", "Groove013")
groove14.Profile = sketch15
groove14.ReferenceAxis = (sketch15, ["Axis0"])
groove14.Angle = 360

# Sketch on YZ plane
sketch16 = body.newObject("Sketcher::SketchObject", "Sketch015")
sketch16.AttachmentSupport = (doc.getObject("YZ_Plane"), [""])
sketch16.MapMode = "FlatFace"
sketch16.AttachmentOffset = App.Placement(App.Vector(0, 0, -41.25), App.Rotation())
add_polygon(sketch16, [(-77, 0), (-77, 8), (-80.525, 8), (-80.5, 7.975), (-80.5, 5.6), (-78.6, 5.6), (-78.6, 0)])  # lines 0-6
sketch16.addGeometry(Part.LineSegment(App.Vector(-77, 8, 0), App.Vector(-77, 0, 0)), True)  # axis
sketch16.addConstraint([
    Sketcher.Constraint("Vertical", 0),
    Sketcher.Constraint("Horizontal", 1),
    Sketcher.Constraint("Vertical", 3),
    Sketcher.Constraint("Horizontal", 4),
    Sketcher.Constraint("Vertical", 5),
    Sketcher.Constraint("Horizontal", 6),
    Sketcher.Constraint("Vertical", 7),
    Sketcher.Constraint("Coincident", 7, 1, 0, 2),
    Sketcher.Constraint("PointOnObject", 5, 2, -1),
    Sketcher.Constraint("PointOnObject", 7, 2, -1),
    Sketcher.Constraint("DistanceY", 0, 1, 0, 2, Q("8 mm")),
    Sketcher.Constraint("Angle", 2, Q("-45 deg")),
    Sketcher.Constraint("DistanceX", 4, 1, 4, 2, Q("1.9 mm")),
    Sketcher.Constraint("DistanceX", 6, 1, 6, 2, Q("1.6 mm")),
    Sketcher.Constraint("DistanceY", 5, 2, 5, 1, Q("5.6 mm")),
    Sketcher.Constraint("DistanceX", 0, 2, -1, 1, Q("77 mm")),
    Sketcher.Constraint("DistanceX", 1, 2, 1, 1, Q("3.525 mm")),
])
groove15 = body.newObject("PartDesign::Groove", "Groove014")
groove15.Profile = sketch16
groove15.ReferenceAxis = (sketch16, ["Axis0"])
groove15.Angle = 360

# Sketch on YZ plane
sketch17 = body.newObject("Sketcher::SketchObject", "Sketch016")
sketch17.AttachmentSupport = (doc.getObject("YZ_Plane"), [""])
sketch17.MapMode = "FlatFace"
sketch17.AttachmentOffset = App.Placement(App.Vector(0, 0, -8.25), App.Rotation())
add_polygon(sketch17, [(-77, 0), (-77, 8), (-80.525, 8), (-80.5, 7.975), (-80.5, 5.6), (-78.6, 5.6), (-78.6, 0)])  # lines 0-6
sketch17.addGeometry(Part.LineSegment(App.Vector(-77, 8, 0), App.Vector(-77, 0, 0)), True)  # axis
sketch17.addConstraint([
    Sketcher.Constraint("Vertical", 0),
    Sketcher.Constraint("Horizontal", 1),
    Sketcher.Constraint("Vertical", 3),
    Sketcher.Constraint("Horizontal", 4),
    Sketcher.Constraint("Vertical", 5),
    Sketcher.Constraint("Horizontal", 6),
    Sketcher.Constraint("Vertical", 7),
    Sketcher.Constraint("Coincident", 7, 1, 0, 2),
    Sketcher.Constraint("PointOnObject", 5, 2, -1),
    Sketcher.Constraint("PointOnObject", 7, 2, -1),
    Sketcher.Constraint("DistanceY", 0, 1, 0, 2, Q("8 mm")),
    Sketcher.Constraint("Angle", 2, Q("-45 deg")),
    Sketcher.Constraint("DistanceX", 4, 1, 4, 2, Q("1.9 mm")),
    Sketcher.Constraint("DistanceX", 6, 1, 6, 2, Q("1.6 mm")),
    Sketcher.Constraint("DistanceY", 5, 2, 5, 1, Q("5.6 mm")),
    Sketcher.Constraint("DistanceX", 0, 2, -1, 1, Q("77 mm")),
    Sketcher.Constraint("DistanceX", 1, 2, 1, 1, Q("3.525 mm")),
])
groove16 = body.newObject("PartDesign::Groove", "Groove015")
groove16.Profile = sketch17
groove16.ReferenceAxis = (sketch17, ["Axis0"])
groove16.Angle = 360

# Sketch on YZ plane
sketch18 = body.newObject("Sketcher::SketchObject", "Sketch017")
sketch18.AttachmentSupport = (doc.getObject("YZ_Plane"), [""])
sketch18.MapMode = "FlatFace"
sketch18.AttachmentOffset = App.Placement(App.Vector(0, 0, 24.75), App.Rotation())
add_polygon(sketch18, [(-77, 0), (-77, 8), (-80.525, 8), (-80.5, 7.975), (-80.5, 5.6), (-78.6, 5.6), (-78.6, 0)])  # lines 0-6
sketch18.addGeometry(Part.LineSegment(App.Vector(-77, 8, 0), App.Vector(-77, 0, 0)), True)  # axis
sketch18.addConstraint([
    Sketcher.Constraint("Vertical", 0),
    Sketcher.Constraint("Horizontal", 1),
    Sketcher.Constraint("Vertical", 3),
    Sketcher.Constraint("Horizontal", 4),
    Sketcher.Constraint("Vertical", 5),
    Sketcher.Constraint("Horizontal", 6),
    Sketcher.Constraint("Vertical", 7),
    Sketcher.Constraint("Coincident", 7, 1, 0, 2),
    Sketcher.Constraint("PointOnObject", 5, 2, -1),
    Sketcher.Constraint("PointOnObject", 7, 2, -1),
    Sketcher.Constraint("DistanceY", 0, 1, 0, 2, Q("8 mm")),
    Sketcher.Constraint("Angle", 2, Q("-45 deg")),
    Sketcher.Constraint("DistanceX", 4, 1, 4, 2, Q("1.9 mm")),
    Sketcher.Constraint("DistanceX", 6, 1, 6, 2, Q("1.6 mm")),
    Sketcher.Constraint("DistanceY", 5, 2, 5, 1, Q("5.6 mm")),
    Sketcher.Constraint("DistanceX", 0, 2, -1, 1, Q("77 mm")),
    Sketcher.Constraint("DistanceX", 1, 2, 1, 1, Q("3.525 mm")),
])
groove17 = body.newObject("PartDesign::Groove", "Groove016")
groove17.Profile = sketch18
groove17.ReferenceAxis = (sketch18, ["Axis0"])
groove17.Angle = 360

# Sketch on YZ plane
sketch19 = body.newObject("Sketcher::SketchObject", "Sketch018")
sketch19.AttachmentSupport = (doc.getObject("YZ_Plane"), [""])
sketch19.MapMode = "FlatFace"
sketch19.AttachmentOffset = App.Placement(App.Vector(0, 0, 57.75), App.Rotation())
add_polygon(sketch19, [(-77, 0), (-77, 8), (-80.525, 8), (-80.5, 7.975), (-80.5, 5.6), (-78.6, 5.6), (-78.6, 0)])  # lines 0-6
sketch19.addGeometry(Part.LineSegment(App.Vector(-77, 8, 0), App.Vector(-77, 0, 0)), True)  # axis
sketch19.addConstraint([
    Sketcher.Constraint("Vertical", 0),
    Sketcher.Constraint("Horizontal", 1),
    Sketcher.Constraint("Vertical", 3),
    Sketcher.Constraint("Horizontal", 4),
    Sketcher.Constraint("Vertical", 5),
    Sketcher.Constraint("Horizontal", 6),
    Sketcher.Constraint("Vertical", 7),
    Sketcher.Constraint("Coincident", 7, 1, 0, 2),
    Sketcher.Constraint("PointOnObject", 5, 2, -1),
    Sketcher.Constraint("PointOnObject", 7, 2, -1),
    Sketcher.Constraint("DistanceY", 0, 1, 0, 2, Q("8 mm")),
    Sketcher.Constraint("Angle", 2, Q("-45 deg")),
    Sketcher.Constraint("DistanceX", 4, 1, 4, 2, Q("1.9 mm")),
    Sketcher.Constraint("DistanceX", 6, 1, 6, 2, Q("1.6 mm")),
    Sketcher.Constraint("DistanceY", 5, 2, 5, 1, Q("5.6 mm")),
    Sketcher.Constraint("DistanceX", 0, 2, -1, 1, Q("77 mm")),
    Sketcher.Constraint("DistanceX", 1, 2, 1, 1, Q("3.525 mm")),
])
groove18 = body.newObject("PartDesign::Groove", "Groove017")
groove18.Profile = sketch19
groove18.ReferenceAxis = (sketch19, ["Axis0"])
groove18.Angle = 360

# Sketch on YZ plane
sketch20 = body.newObject("Sketcher::SketchObject", "Sketch019")
sketch20.AttachmentSupport = (doc.getObject("YZ_Plane"), [""])
sketch20.MapMode = "FlatFace"
sketch20.AttachmentOffset = App.Placement(App.Vector(0, 0, 90.75), App.Rotation())
add_polygon(sketch20, [(-77, 0), (-77, 8), (-80.525, 8), (-80.5, 7.975), (-80.5, 5.6), (-78.6, 5.6), (-78.6, 0)])  # lines 0-6
sketch20.addGeometry(Part.LineSegment(App.Vector(-77, 8, 0), App.Vector(-77, 0, 0)), True)  # axis
sketch20.addConstraint([
    Sketcher.Constraint("Vertical", 0),
    Sketcher.Constraint("Horizontal", 1),
    Sketcher.Constraint("Vertical", 3),
    Sketcher.Constraint("Horizontal", 4),
    Sketcher.Constraint("Vertical", 5),
    Sketcher.Constraint("Horizontal", 6),
    Sketcher.Constraint("Vertical", 7),
    Sketcher.Constraint("Coincident", 7, 1, 0, 2),
    Sketcher.Constraint("PointOnObject", 5, 2, -1),
    Sketcher.Constraint("PointOnObject", 7, 2, -1),
    Sketcher.Constraint("DistanceY", 0, 1, 0, 2, Q("8 mm")),
    Sketcher.Constraint("Angle", 2, Q("-45 deg")),
    Sketcher.Constraint("DistanceX", 4, 1, 4, 2, Q("1.9 mm")),
    Sketcher.Constraint("DistanceX", 6, 1, 6, 2, Q("1.6 mm")),
    Sketcher.Constraint("DistanceY", 5, 2, 5, 1, Q("5.6 mm")),
    Sketcher.Constraint("DistanceX", 0, 2, -1, 1, Q("77 mm")),
    Sketcher.Constraint("DistanceX", 1, 2, 1, 1, Q("3.525 mm")),
])
groove19 = body.newObject("PartDesign::Groove", "Groove018")
groove19.Profile = sketch20
groove19.ReferenceAxis = (sketch20, ["Axis0"])
groove19.Angle = 360

# Sketch on YZ plane
sketch21 = body.newObject("Sketcher::SketchObject", "Sketch020")
sketch21.AttachmentSupport = (doc.getObject("YZ_Plane"), [""])
sketch21.MapMode = "FlatFace"
sketch21.AttachmentOffset = App.Placement(App.Vector(0, 0, 123.75), App.Rotation())
add_polygon(sketch21, [(-77, 0), (-77, 8), (-80.525, 8), (-80.5, 7.975), (-80.5, 5.6), (-78.6, 5.6), (-78.6, 0)])  # lines 0-6
sketch21.addGeometry(Part.LineSegment(App.Vector(-77, 8, 0), App.Vector(-77, 0, 0)), True)  # axis
sketch21.addConstraint([
    Sketcher.Constraint("Vertical", 0),
    Sketcher.Constraint("Horizontal", 1),
    Sketcher.Constraint("Vertical", 3),
    Sketcher.Constraint("Horizontal", 4),
    Sketcher.Constraint("Vertical", 5),
    Sketcher.Constraint("Horizontal", 6),
    Sketcher.Constraint("Vertical", 7),
    Sketcher.Constraint("Coincident", 7, 1, 0, 2),
    Sketcher.Constraint("PointOnObject", 5, 2, -1),
    Sketcher.Constraint("PointOnObject", 7, 2, -1),
    Sketcher.Constraint("DistanceY", 0, 1, 0, 2, Q("8 mm")),
    Sketcher.Constraint("Angle", 2, Q("-45 deg")),
    Sketcher.Constraint("DistanceX", 4, 1, 4, 2, Q("1.9 mm")),
    Sketcher.Constraint("DistanceX", 6, 1, 6, 2, Q("1.6 mm")),
    Sketcher.Constraint("DistanceY", 5, 2, 5, 1, Q("5.6 mm")),
    Sketcher.Constraint("DistanceX", 0, 2, -1, 1, Q("77 mm")),
    Sketcher.Constraint("DistanceX", 1, 2, 1, 1, Q("3.525 mm")),
])
groove20 = body.newObject("PartDesign::Groove", "Groove019")
groove20.Profile = sketch21
groove20.ReferenceAxis = (sketch21, ["Axis0"])
groove20.Angle = 360

# Sketch on YZ plane
sketch22 = body.newObject("Sketcher::SketchObject", "Sketch021")
sketch22.AttachmentSupport = (doc.getObject("YZ_Plane"), [""])
sketch22.MapMode = "FlatFace"
sketch22.AttachmentOffset = App.Placement(App.Vector(0, 0, 156.75), App.Rotation())
add_polygon(sketch22, [(-77, 0), (-77, 8), (-80.525, 8), (-80.5, 7.975), (-80.5, 5.6), (-78.6, 5.6), (-78.6, 0)])  # lines 0-6
sketch22.addGeometry(Part.LineSegment(App.Vector(-77, 8, 0), App.Vector(-77, 0, 0)), True)  # axis
sketch22.addConstraint([
    Sketcher.Constraint("Vertical", 0),
    Sketcher.Constraint("Horizontal", 1),
    Sketcher.Constraint("Vertical", 3),
    Sketcher.Constraint("Horizontal", 4),
    Sketcher.Constraint("Vertical", 5),
    Sketcher.Constraint("Horizontal", 6),
    Sketcher.Constraint("Vertical", 7),
    Sketcher.Constraint("Coincident", 7, 1, 0, 2),
    Sketcher.Constraint("PointOnObject", 5, 2, -1),
    Sketcher.Constraint("PointOnObject", 7, 2, -1),
    Sketcher.Constraint("DistanceY", 0, 1, 0, 2, Q("8 mm")),
    Sketcher.Constraint("Angle", 2, Q("-45 deg")),
    Sketcher.Constraint("DistanceX", 4, 1, 4, 2, Q("1.9 mm")),
    Sketcher.Constraint("DistanceX", 6, 1, 6, 2, Q("1.6 mm")),
    Sketcher.Constraint("DistanceY", 5, 2, 5, 1, Q("5.6 mm")),
    Sketcher.Constraint("DistanceX", 0, 2, -1, 1, Q("77 mm")),
    Sketcher.Constraint("DistanceX", 1, 2, 1, 1, Q("3.525 mm")),
])
groove21 = body.newObject("PartDesign::Groove", "Groove020")
groove21.Profile = sketch22
groove21.ReferenceAxis = (sketch22, ["Axis0"])
groove21.Angle = 360

# Sketch on XZ plane
sketch23 = body.newObject("Sketcher::SketchObject", "Sketch022")
sketch23.AttachmentSupport = (doc.getObject("XZ_Plane"), [""])
sketch23.MapMode = "FlatFace"
sketch23.AttachmentOffset = App.Placement(App.Vector(0, 0, -90.5), App.Rotation())
add_polygon(sketch23, [(-204.25, 0), (-204.25, 4.5), (-181.75, 4.5), (-181.75, 0)])  # lines 0-3
sketch23.addConstraint([
    Sketcher.Constraint("Vertical", 0),
    Sketcher.Constraint("Horizontal", 1),
    Sketcher.Constraint("Vertical", 2),
    Sketcher.Constraint("Horizontal", 3),
    Sketcher.Constraint("PointOnObject", 2, 2, -1),
    Sketcher.Constraint("DistanceX", 1, 1, 1, 2, Q("22.5 mm")),
    Sketcher.Constraint("DistanceY", 0, 1, 0, 2, Q("4.5 mm")),
    Sketcher.Constraint("DistanceX", 0, 2, -1, 1, Q("204.25 mm")),
])
pocket1 = body.newObject("PartDesign::Pocket", "Pocket")
pocket1.Profile = sketch23
pocket1.Type = "UpToFirst"
pocket1.Reversed = True

# Sketch on XZ plane
sketch24 = body.newObject("Sketcher::SketchObject", "Sketch023")
sketch24.AttachmentSupport = (doc.getObject("XZ_Plane"), [""])
sketch24.MapMode = "FlatFace"
sketch24.AttachmentOffset = App.Placement(App.Vector(0, 0, -90.5), App.Rotation())
add_polygon(sketch24, [(181.75, 0), (181.75, 4.5), (204.25, 4.5), (204.25, 0)])  # lines 0-3
sketch24.addConstraint([
    Sketcher.Constraint("Vertical", 0),
    Sketcher.Constraint("Horizontal", 1),
    Sketcher.Constraint("Vertical", 2),
    Sketcher.Constraint("Horizontal", 3),
    Sketcher.Constraint("PointOnObject", 2, 2, -1),
    Sketcher.Constraint("DistanceX", 1, 1, 1, 2, Q("22.5 mm")),
    Sketcher.Constraint("DistanceY", 0, 1, 0, 2, Q("4.5 mm")),
    Sketcher.Constraint("DistanceX", -1, 1, 0, 2, Q("181.75 mm")),
])
pocket2 = body.newObject("PartDesign::Pocket", "Pocket001")
pocket2.Profile = sketch24
pocket2.Type = "UpToFirst"
pocket2.Reversed = True

# Sketch on XY plane
sketch25 = body.newObject("Sketcher::SketchObject", "Sketch024")
sketch25.AttachmentSupport = (doc.getObject("XY_Plane"), [""])
sketch25.MapMode = "FlatFace"
sketch25.AttachmentOffset = App.Placement(App.Vector(0, 0, 4.5), App.Rotation())
add_polygon(sketch25, [(-204.25, 109.225), (-204.25, 90.5), (-181.75, 90.5), (-181.75, 109.225)])  # lines 0-3
sketch25.addConstraint([
    Sketcher.Constraint("Vertical", 0),
    Sketcher.Constraint("Horizontal", 1),
    Sketcher.Constraint("Vertical", 2),
    Sketcher.Constraint("Horizontal", 3),
    Sketcher.Constraint("DistanceX", 1, 1, 1, 2, Q("22.5 mm")),
    Sketcher.Constraint("DistanceY", -1, 1, 0, 2, Q("90.5 mm")),
    Sketcher.Constraint("DistanceY", 0, 2, 0, 1, Q("18.725 mm")),
    Sketcher.Constraint("DistanceX", 0, 2, -1, 1, Q("204.25 mm")),
])
pad2 = body.newObject("PartDesign::Pad", "Pad001")
pad2.Profile = sketch25
pad2.Length = 3.5
doc.recompute()

mirrored = body.newObject("PartDesign::Mirrored", "Mirrored")
mirrored.Originals = [pad2]
mirrored.MirrorPlane = (doc.getObject("YZ_Plane"), [""])
body.Tip = mirrored

# Sketch on XY plane
sketch26 = body.newObject("Sketcher::SketchObject", "Sketch025")
sketch26.AttachmentSupport = (doc.getObject("XY_Plane"), [""])
sketch26.MapMode = "FlatFace"
sketch26.AttachmentOffset = App.Placement(App.Vector(0, 0, 8), App.Rotation())
add_polygon(sketch26, [(-137.25, 112.875), (-137.25, 90.5), (137.25, 90.5), (137.25, 112.875)])  # lines 0-3
sketch26.addConstraint([
    Sketcher.Constraint("Vertical", 0),
    Sketcher.Constraint("Horizontal", 1),
    Sketcher.Constraint("Vertical", 2),
    Sketcher.Constraint("Horizontal", 3),
    Sketcher.Constraint("DistanceX", 1, 1, 1, 2, Q("274.5 mm")),
    Sketcher.Constraint("DistanceY", -1, 1, 0, 2, Q("90.5 mm")),
    Sketcher.Constraint("DistanceY", 0, 2, 0, 1, Q("22.375 mm")),
    Sketcher.Constraint("DistanceX", 0, 2, -1, 1, Q("137.25 mm")),
])
pad3 = body.newObject("PartDesign::Pad", "Pad002")
pad3.Profile = sketch26
pad3.Length = 5
pad3.Reversed = True

# Sketch on XY plane
sketch27 = body.newObject("Sketcher::SketchObject", "Sketch026")
sketch27.AttachmentSupport = (doc.getObject("XY_Plane"), [""])
sketch27.MapMode = "FlatFace"
sketch27.AttachmentOffset = App.Placement(App.Vector(0, 0, 8), App.Rotation())
sketch27.addGeometry([
    Part.Circle(App.Vector(-131.25, 98, 0), App.Vector(0, 0, 1), 1.7),
    Part.Circle(App.Vector(131.25, 98, 0), App.Vector(0, 0, 1), 1.7),
], False)
sketch27.addConstraint([
    Sketcher.Constraint("Equal", 0, 1),
    Sketcher.Constraint("Symmetric", 0, 3, 1, 3, -2),
    Sketcher.Constraint("Diameter", 0, Q("3.4 mm")),
    Sketcher.Constraint("DistanceY", -1, 1, 0, 3, Q("98 mm")),
    Sketcher.Constraint("DistanceX", 0, 3, 1, 3, Q("262.5 mm")),
])
doc.recompute()
hole = body.newObject("PartDesign::Hole", "Hole")
hole.Profile = sketch27
hole.ThreadType = "None"
hole.Diameter = 3.4
hole.DepthType = "ThroughAll"
hole.HoleCutType = "Countersink"
hole.HoleCutDiameter = 6.3
hole.HoleCutCountersinkAngle = 90

# Sketch on XY plane
sketch28 = body.newObject("Sketcher::SketchObject", "Sketch027")
sketch28.AttachmentSupport = (doc.getObject("XY_Plane"), [""])
sketch28.MapMode = "FlatFace"
sketch28.AttachmentOffset = App.Placement(App.Vector(0, 0, 3), App.Rotation())
add_polygon(sketch28, [(124.75, 112.875), (124.75, 90.5), (-124.75, 90.5), (-124.75, 112.875)])  # lines 0-3
sketch28.addConstraint([
    Sketcher.Constraint("Vertical", 0),
    Sketcher.Constraint("Horizontal", 1),
    Sketcher.Constraint("Vertical", 2),
    Sketcher.Constraint("Horizontal", 3),
    Sketcher.Constraint("DistanceX", 1, 2, 1, 1, Q("249.5 mm")),
    Sketcher.Constraint("DistanceY", -1, 1, 0, 2, Q("90.5 mm")),
    Sketcher.Constraint("DistanceY", 0, 2, 0, 1, Q("22.375 mm")),
    Sketcher.Constraint("DistanceX", -1, 1, 0, 2, Q("124.75 mm")),
])
pocket3 = body.newObject("PartDesign::Pocket", "Pocket002")
pocket3.Profile = sketch28
pocket3.Length = 3
pocket3.Reversed = True

# Sketch on XY plane
sketch29 = body.newObject("Sketcher::SketchObject", "Sketch028")
sketch29.AttachmentSupport = (doc.getObject("XY_Plane"), [""])
sketch29.MapMode = "FlatFace"
add_polygon(sketch29, [(204.25, 112.875), (204.25, -90.5), (0, -90.5), (0, 112.875)])  # lines 0-3
sketch29.addConstraint([
    Sketcher.Constraint("Vertical", 0),
    Sketcher.Constraint("Horizontal", 1),
    Sketcher.Constraint("Vertical", 2),
    Sketcher.Constraint("Horizontal", 3),
    Sketcher.Constraint("PointOnObject", 1, 2, -2),
    Sketcher.Constraint("DistanceX", 1, 2, 1, 1, Q("204.25 mm")),
    Sketcher.Constraint("DistanceY", 0, 2, -1, 1, Q("90.5 mm")),
    Sketcher.Constraint("DistanceY", 0, 2, 0, 1, Q("203.375 mm")),
])
pocket4 = body.newObject("PartDesign::Pocket", "Pocket003")
pocket4.Profile = sketch29
pocket4.Length = 10
pocket4.Reversed = True

doc.recompute()
